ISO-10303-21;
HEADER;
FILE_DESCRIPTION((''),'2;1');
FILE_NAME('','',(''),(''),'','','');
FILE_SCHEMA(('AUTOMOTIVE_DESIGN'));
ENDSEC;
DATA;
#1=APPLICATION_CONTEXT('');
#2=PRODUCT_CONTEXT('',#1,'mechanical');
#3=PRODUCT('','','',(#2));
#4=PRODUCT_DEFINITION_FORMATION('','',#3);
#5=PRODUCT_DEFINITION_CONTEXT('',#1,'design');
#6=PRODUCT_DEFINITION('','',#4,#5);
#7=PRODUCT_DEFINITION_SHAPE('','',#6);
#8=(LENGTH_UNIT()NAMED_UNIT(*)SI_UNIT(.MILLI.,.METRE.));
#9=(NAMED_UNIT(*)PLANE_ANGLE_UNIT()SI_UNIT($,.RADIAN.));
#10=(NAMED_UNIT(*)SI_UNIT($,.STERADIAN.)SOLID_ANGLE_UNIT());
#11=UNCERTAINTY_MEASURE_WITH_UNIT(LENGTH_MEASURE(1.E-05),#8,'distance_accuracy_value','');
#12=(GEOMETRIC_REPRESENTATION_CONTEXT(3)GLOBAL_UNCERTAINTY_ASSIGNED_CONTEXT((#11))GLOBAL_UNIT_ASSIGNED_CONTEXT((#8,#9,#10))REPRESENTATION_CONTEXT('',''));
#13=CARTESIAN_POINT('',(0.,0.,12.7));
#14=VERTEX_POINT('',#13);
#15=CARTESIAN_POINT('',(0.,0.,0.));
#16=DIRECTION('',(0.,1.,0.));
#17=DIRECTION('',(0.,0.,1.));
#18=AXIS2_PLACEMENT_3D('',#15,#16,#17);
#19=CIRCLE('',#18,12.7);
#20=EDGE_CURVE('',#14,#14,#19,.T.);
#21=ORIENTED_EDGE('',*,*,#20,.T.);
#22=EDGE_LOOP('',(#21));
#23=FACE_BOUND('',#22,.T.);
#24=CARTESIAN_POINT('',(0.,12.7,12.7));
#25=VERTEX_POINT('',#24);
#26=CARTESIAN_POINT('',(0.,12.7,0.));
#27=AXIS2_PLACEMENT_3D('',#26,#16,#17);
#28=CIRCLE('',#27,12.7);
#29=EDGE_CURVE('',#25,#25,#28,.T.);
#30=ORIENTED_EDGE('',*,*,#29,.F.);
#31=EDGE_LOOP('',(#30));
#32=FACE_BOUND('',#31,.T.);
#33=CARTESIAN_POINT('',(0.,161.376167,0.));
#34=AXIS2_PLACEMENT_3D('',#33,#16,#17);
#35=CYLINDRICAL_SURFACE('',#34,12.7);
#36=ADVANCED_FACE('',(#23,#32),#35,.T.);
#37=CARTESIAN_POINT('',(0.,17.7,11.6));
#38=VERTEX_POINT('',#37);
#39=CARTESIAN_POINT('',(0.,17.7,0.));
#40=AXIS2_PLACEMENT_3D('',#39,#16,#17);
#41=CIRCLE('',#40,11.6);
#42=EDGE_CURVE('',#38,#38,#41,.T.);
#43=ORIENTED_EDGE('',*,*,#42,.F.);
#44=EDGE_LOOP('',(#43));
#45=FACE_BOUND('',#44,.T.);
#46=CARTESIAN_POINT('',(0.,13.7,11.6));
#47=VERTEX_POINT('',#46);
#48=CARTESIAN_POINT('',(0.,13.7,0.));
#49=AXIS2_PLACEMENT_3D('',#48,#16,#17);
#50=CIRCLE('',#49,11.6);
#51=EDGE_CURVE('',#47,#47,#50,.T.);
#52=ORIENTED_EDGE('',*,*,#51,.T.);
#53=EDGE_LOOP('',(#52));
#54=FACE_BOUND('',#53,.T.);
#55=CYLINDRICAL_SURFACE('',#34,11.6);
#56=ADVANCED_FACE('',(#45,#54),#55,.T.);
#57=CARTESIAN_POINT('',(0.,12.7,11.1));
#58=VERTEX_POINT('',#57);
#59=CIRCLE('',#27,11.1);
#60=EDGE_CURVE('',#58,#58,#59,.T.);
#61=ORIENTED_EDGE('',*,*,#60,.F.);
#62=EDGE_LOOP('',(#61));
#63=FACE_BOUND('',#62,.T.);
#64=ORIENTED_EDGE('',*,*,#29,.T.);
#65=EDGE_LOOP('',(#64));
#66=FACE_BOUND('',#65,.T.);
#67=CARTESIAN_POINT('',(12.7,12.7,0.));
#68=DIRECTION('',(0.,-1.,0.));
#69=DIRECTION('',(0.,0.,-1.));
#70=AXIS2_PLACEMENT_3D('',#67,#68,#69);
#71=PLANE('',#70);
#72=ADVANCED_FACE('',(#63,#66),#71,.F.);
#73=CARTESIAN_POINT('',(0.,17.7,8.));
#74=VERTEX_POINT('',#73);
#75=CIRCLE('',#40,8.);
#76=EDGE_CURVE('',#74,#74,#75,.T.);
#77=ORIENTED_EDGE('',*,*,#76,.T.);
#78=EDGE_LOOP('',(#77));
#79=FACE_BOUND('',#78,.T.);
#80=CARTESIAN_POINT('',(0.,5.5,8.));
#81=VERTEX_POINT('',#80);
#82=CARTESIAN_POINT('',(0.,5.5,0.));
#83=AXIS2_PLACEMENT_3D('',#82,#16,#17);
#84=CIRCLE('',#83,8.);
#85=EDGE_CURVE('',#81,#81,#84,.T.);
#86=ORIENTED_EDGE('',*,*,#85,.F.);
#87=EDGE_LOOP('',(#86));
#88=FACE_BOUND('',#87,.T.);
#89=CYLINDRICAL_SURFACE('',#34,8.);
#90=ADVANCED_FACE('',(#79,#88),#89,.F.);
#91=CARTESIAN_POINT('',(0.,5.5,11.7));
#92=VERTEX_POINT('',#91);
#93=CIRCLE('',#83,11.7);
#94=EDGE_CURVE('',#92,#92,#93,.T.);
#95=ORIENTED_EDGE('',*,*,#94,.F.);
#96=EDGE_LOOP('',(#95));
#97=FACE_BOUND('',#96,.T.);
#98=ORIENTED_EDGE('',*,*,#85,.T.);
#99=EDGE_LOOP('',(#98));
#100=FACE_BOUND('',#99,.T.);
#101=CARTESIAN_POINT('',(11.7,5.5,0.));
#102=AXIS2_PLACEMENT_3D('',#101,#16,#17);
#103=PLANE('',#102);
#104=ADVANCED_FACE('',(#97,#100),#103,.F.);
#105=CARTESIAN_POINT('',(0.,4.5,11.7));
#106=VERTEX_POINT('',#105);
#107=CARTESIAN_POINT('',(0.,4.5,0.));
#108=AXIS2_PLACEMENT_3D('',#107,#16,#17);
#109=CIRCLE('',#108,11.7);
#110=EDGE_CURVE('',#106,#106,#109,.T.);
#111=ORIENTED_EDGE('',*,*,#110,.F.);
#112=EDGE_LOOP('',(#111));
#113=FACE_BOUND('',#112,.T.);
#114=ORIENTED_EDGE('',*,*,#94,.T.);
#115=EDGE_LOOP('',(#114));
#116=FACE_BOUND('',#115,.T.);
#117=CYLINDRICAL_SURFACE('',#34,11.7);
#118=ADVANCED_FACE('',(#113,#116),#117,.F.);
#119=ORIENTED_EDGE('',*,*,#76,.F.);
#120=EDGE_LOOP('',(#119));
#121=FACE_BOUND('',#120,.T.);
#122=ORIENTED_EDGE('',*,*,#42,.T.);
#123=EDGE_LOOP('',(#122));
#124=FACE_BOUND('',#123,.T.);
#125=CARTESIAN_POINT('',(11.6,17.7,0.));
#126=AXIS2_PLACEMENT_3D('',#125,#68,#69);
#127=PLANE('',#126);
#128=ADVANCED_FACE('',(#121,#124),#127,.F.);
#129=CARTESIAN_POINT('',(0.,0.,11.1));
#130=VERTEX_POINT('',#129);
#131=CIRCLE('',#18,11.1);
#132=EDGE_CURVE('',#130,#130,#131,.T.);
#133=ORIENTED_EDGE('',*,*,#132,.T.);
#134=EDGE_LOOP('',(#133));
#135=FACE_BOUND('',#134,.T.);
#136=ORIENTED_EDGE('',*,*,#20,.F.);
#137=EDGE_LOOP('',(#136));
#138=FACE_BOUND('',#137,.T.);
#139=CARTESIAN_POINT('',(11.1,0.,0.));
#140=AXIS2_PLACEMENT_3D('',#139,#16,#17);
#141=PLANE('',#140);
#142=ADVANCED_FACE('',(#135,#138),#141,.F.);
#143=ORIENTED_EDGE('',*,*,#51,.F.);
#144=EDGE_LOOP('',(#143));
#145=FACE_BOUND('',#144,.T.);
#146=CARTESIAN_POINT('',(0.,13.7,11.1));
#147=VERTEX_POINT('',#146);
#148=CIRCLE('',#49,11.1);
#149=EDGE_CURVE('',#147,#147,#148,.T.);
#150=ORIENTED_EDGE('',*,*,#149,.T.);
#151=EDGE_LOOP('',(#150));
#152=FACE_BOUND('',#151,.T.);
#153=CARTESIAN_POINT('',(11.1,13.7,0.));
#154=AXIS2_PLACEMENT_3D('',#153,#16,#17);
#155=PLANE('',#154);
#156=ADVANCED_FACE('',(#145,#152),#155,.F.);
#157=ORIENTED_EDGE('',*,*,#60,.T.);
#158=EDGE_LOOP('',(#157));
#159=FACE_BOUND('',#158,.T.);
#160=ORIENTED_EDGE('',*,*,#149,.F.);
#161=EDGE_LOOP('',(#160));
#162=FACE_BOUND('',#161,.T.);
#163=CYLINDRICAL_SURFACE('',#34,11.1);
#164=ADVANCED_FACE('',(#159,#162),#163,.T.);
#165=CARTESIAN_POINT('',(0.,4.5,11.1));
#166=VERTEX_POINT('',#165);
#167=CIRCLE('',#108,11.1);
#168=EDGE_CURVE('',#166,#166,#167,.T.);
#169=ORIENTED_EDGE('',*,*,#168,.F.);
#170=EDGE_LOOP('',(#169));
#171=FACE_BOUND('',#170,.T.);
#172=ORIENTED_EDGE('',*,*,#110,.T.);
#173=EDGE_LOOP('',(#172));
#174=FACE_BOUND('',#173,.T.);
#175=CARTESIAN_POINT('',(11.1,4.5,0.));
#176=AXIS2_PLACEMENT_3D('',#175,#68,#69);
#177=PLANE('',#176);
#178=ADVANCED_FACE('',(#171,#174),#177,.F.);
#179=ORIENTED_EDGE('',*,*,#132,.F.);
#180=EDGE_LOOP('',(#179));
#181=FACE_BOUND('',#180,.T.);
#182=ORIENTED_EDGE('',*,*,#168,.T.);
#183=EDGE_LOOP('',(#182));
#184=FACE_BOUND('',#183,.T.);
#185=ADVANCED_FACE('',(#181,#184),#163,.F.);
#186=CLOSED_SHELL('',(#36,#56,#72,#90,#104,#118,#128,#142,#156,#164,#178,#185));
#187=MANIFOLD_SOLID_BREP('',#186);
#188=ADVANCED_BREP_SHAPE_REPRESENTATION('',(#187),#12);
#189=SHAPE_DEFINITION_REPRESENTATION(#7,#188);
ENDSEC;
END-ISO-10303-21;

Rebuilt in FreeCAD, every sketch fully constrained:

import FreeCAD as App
import Part
import Sketcher

V = App.Vector


def add_polygon(sketch, points):
    """Adds a closed chain of lines whose ends are joined by coincident constraints."""
    first, n = sketch.GeometryCount, len(points)
    for a, b in zip(points, points[1:] + points[:1]):
        sketch.addGeometry(Part.LineSegment(App.Vector(*a, 0), App.Vector(*b, 0)), False)
    for i in range(n):
        sketch.addConstraint(Sketcher.Constraint("Coincident", first + i, 2, first + (i + 1) % n, 1))

doc = App.newDocument("Part")
params = doc.addObject("Spreadsheet::Sheet", "Params")
for row, (alias, value) in enumerate([
    ("sketch1_height", "1 mm"),
    ("sketch1_height2", "4 mm"),
    ("sketch1_width", "1.6 mm"),
    ("sketch1_width2", "0.5 mm"),
    ("sketch1_width3", "3.6 mm"),
    ("revolution_angle", "360 deg"),
], start=1):
    params.set(f"A{row}", alias)
    params.set(f"B{row}", "=" + value)
    params.setAlias(f"B{row}", alias)

body = doc.addObject("PartDesign::Body", "Body")

sketch1 = body.newObject("Sketcher::SketchObject", "Sketch")
sketch1.AttachmentSupport = (doc.getObject("XY_Plane"), [""])
sketch1.MapMode = "FlatFace"
add_polygon(sketch1, [(11.1, 4.5), (11.1, 0), (12.7, 0), (12.7, 12.7), (11.1, 12.7), (11.1, 13.7), (11.6, 13.7), (11.6, 17.7), (8, 17.7), (8, 5.5), (11.7, 5.5), (11.7, 4.5)])
sketch1.addConstraint(Sketcher.Constraint("Vertical", 0))
sketch1.addConstraint(Sketcher.Constraint("Horizontal", 1))
sketch1.addConstraint(Sketcher.Constraint("Vertical", 2))
sketch1.addConstraint(Sketcher.Constraint("Horizontal", 3))
sketch1.addConstraint(Sketcher.Constraint("Vertical", 4))
sketch1.addConstraint(Sketcher.Constraint("Horizontal", 5))
sketch1.addConstraint(Sketcher.Constraint("Vertical", 6))
sketch1.addConstraint(Sketcher.Constraint("Horizontal", 7))
sketch1.addConstraint(Sketcher.Constraint("Vertical", 8))
sketch1.addConstraint(Sketcher.Constraint("Horizontal", 9))
sketch1.addConstraint(Sketcher.Constraint("Vertical", 10))
sketch1.addConstraint(Sketcher.Constraint("Horizontal", 11))
sketch1.addConstraint(Sketcher.Constraint("PointOnObject", 0, 2, -1))
sketch1.addConstraint(Sketcher.Constraint("Vertical", 0, 2, 3, 2))
sketch1.addConstraint(Sketcher.Constraint("Equal", 4, 10))
sketch1.addConstraint(Sketcher.Constraint("DistanceY", 4, 1, 4, 2, 1.0))
sketch1.addConstraint(Sketcher.Constraint("DistanceY", 6, 1, 6, 2, 4.0))
sketch1.addConstraint(Sketcher.Constraint("DistanceX", 1, 1, 1, 2, 1.6))
sketch1.addConstraint(Sketcher.Constraint("DistanceX", 5, 1, 5, 2, 0.5))
sketch1.addConstraint(Sketcher.Constraint("DistanceX", 7, 2, 7, 1, 3.6))
sketch1.addConstraint(Sketcher.Constraint("DistanceX", 9, 1, 9, 2, 3.7))
sketch1.addConstraint(Sketcher.Constraint("DistanceY", 0, 2, 0, 1, 4.5))
sketch1.addConstraint(Sketcher.Constraint("DistanceY", 2, 1, 2, 2, 12.7))
sketch1.addConstraint(Sketcher.Constraint("DistanceX", -1, 1, 7, 2, 8.0))
sketch1.setExpression("Constraints[27]", "Params.sketch1_height")
sketch1.setExpression("Constraints[28]", "Params.sketch1_height2")
sketch1.setExpression("Constraints[29]", "Params.sketch1_width")
sketch1.setExpression("Constraints[30]", "Params.sketch1_width2")
sketch1.setExpression("Constraints[31]", "Params.sketch1_width3")
revolution = body.newObject("PartDesign::Revolution", "Revolution")
revolution.Profile = sketch1
revolution.ReferenceAxis = (sketch1, ["V_Axis"])
revolution.setExpression("Angle", "Params.revolution_angle")

doc.recompute()
